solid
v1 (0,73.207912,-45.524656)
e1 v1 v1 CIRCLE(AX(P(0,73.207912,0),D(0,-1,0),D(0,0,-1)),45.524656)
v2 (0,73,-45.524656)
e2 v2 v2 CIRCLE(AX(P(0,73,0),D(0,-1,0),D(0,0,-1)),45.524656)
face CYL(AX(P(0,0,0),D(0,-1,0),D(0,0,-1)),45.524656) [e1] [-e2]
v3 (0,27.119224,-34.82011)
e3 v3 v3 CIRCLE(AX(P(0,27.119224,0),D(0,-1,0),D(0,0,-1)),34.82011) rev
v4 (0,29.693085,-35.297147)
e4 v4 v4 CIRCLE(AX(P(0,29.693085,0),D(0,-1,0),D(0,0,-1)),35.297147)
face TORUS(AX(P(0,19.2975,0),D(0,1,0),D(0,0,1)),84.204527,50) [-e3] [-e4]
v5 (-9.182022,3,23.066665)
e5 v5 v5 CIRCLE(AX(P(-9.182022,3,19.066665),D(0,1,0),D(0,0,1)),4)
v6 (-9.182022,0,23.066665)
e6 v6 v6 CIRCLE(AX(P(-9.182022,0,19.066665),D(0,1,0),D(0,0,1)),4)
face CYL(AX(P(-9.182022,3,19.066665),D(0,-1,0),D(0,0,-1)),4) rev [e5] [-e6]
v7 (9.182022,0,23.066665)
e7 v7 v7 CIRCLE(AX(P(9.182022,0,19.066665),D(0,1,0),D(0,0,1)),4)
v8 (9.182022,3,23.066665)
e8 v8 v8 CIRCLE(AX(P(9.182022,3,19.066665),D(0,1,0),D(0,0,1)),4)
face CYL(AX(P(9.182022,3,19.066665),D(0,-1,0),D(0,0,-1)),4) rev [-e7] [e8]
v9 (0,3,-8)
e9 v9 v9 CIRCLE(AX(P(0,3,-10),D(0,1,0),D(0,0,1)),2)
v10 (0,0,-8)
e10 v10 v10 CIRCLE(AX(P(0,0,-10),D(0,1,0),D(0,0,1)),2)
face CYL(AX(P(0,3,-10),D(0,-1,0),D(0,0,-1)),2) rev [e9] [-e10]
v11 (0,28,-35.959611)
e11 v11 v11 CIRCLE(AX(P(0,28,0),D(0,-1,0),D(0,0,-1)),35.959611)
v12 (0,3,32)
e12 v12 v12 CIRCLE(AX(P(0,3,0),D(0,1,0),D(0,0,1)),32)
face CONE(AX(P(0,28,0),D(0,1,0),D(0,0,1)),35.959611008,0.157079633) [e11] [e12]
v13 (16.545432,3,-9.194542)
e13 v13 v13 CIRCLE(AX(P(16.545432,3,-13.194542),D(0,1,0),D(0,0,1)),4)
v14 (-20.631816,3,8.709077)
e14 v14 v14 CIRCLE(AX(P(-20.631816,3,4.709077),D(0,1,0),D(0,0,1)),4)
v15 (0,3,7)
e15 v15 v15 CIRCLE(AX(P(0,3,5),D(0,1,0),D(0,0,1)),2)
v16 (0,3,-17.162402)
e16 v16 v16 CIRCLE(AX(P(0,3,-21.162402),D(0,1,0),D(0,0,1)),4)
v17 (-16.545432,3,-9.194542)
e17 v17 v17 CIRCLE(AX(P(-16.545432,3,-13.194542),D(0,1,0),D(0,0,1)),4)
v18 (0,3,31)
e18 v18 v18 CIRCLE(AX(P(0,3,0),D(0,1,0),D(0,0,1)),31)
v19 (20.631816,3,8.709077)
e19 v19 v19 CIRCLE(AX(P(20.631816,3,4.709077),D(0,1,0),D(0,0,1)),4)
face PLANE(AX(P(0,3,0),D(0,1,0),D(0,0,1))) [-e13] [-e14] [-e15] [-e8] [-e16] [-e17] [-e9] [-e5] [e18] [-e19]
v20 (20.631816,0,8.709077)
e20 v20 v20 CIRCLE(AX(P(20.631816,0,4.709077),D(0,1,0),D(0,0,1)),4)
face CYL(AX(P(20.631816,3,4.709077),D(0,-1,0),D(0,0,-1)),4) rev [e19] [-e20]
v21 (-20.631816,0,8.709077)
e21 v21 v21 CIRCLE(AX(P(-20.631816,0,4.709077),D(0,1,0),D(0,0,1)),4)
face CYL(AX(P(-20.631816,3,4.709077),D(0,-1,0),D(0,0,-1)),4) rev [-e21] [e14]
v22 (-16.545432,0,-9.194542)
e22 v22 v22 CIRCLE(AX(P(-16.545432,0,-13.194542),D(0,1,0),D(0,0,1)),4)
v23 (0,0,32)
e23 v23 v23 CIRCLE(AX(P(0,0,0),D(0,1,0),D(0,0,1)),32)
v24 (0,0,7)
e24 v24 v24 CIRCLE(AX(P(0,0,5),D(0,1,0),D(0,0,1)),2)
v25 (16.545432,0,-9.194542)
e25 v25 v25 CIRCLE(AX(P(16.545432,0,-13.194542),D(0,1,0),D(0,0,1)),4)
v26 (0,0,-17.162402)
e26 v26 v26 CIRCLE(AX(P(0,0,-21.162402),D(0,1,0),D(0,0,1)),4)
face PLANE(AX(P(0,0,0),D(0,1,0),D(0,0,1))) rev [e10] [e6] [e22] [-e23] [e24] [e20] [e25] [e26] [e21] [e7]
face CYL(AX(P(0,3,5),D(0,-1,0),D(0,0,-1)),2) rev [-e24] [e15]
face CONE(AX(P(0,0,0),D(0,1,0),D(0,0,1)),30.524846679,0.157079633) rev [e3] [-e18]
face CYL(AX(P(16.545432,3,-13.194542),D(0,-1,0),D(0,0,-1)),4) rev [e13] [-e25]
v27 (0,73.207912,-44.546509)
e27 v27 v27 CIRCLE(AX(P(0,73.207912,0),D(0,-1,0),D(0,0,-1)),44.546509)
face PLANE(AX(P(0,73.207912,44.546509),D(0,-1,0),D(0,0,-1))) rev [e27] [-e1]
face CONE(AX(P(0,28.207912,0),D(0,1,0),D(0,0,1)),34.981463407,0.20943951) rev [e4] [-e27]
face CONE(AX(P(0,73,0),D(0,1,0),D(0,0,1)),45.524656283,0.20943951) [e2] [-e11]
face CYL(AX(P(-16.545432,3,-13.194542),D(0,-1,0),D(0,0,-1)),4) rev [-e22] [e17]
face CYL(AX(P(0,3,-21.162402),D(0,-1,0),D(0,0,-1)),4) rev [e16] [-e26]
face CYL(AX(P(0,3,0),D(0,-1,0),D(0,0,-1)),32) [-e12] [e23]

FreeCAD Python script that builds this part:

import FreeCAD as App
import Part
import Sketcher
from FreeCAD import Vector
Q = App.Units.Quantity


def edges_at(feature, points):
    """Names of the edges that pass closest to the given points."""
    edges = feature.Shape.Edges
    near = lambda p: min(range(len(edges)), key=lambda i: edges[i].distToShape(Part.Vertex(*p))[0])
    return sorted({f"Edge{near(p) + 1}" for p in points})


def add_polygon(sketch, points):
    """Adds a closed chain of lines whose ends are joined by coincident constraints."""
    first, n = sketch.GeometryCount, len(points)
    for a, b in zip(points, points[1:] + points[:1]):
        sketch.addGeometry(Part.LineSegment(App.Vector(*a, 0), App.Vector(*b, 0)), False)
    for i in range(n):
        sketch.addConstraint(Sketcher.Constraint("Coincident", first + i, 2, first + (i + 1) % n, 1))

doc = App.newDocument("Part")
params = doc.addObject("Spreadsheet::Sheet", "Params")
for row, (alias, value) in enumerate([
    ("sketch1_diameter", "64 mm"),
    ("sketch1_diameter2", "8 mm"),
    ("sketch1_diameter3", "4 mm"),
    ("pad1_length", "3 mm"),
    ("sketch2_width", "3 mm"),
    ("sketch2_height", "1 mm"),
    ("revolution_angle", "360 deg"),
    ("sketch3_height", "1 mm"),
    ("revolution2_angle", "360 deg"),
    ("fillet_radius", "50 mm"),
], start=1):
    params.set(f"A{row}", alias)
    params.set(f"B{row}", "=" + value)
    params.setAlias(f"B{row}", alias)

body = doc.addObject("PartDesign::Body", "Body")

# Sketch on XZ plane
sketch1 = body.newObject("Sketcher::SketchObject", "Sketch")
sketch1.AttachmentSupport = (doc.getObject("XZ_Plane"), [""])
sketch1.MapMode = "FlatFace"
sketch1.addGeometry(Part.Circle(Vector(0, 0, 0), Vector(0, 0, 1), 32), False)
sketch1.addGeometry(Part.Circle(Vector(-16.545432, -13.194542, 0), Vector(0, 0, 1), 4), False)
sketch1.addGeometry(Part.Circle(Vector(0, -21.162402, 0), Vector(0, 0, 1), 4), False)
sketch1.addGeometry(Part.Circle(Vector(-20.631816, 4.709077, 0), Vector(0, 0, 1), 4), False)
sketch1.addGeometry(Part.Circle(Vector(-9.182022, 19.066665, 0), Vector(0, 0, 1), 4), False)
sketch1.addGeometry(Part.Circle(Vector(0, -10, 0), Vector(0, 0, 1), 2), False)
sketch1.addGeometry(Part.Circle(Vector(16.545432, -13.194542, 0), Vector(0, 0, 1), 4), False)
sketch1.addGeometry(Part.Circle(Vector(0, 5, 0), Vector(0, 0, 1), 2), False)
sketch1.addGeometry(Part.Circle(Vector(9.182022, 19.066665, 0), Vector(0, 0, 1), 4), False)
sketch1.addGeometry(Part.Circle(Vector(20.631816, 4.709077, 0), Vector(0, 0, 1), 4), False)
sketch1.addConstraint(Sketcher.Constraint("Coincident", 0, 3, -1, 1))
sketch1.addConstraint(Sketcher.Constraint("Equal", 1, 2))
sketch1.addConstraint(Sketcher.Constraint("Equal", 2, 3))
sketch1.addConstraint(Sketcher.Constraint("Equal", 3, 4))
sketch1.addConstraint(Sketcher.Constraint("Equal", 4, 6))
sketch1.addConstraint(Sketcher.Constraint("Equal", 5, 7))
sketch1.addConstraint(Sketcher.Constraint("Equal", 6, 8))
sketch1.addConstraint(Sketcher.Constraint("Equal", 8, 9))
sketch1.addConstraint(Sketcher.Constraint("Symmetric", 1, 3, 6, 3, -2))
sketch1.addConstraint(Sketcher.Constraint("Symmetric", 4, 3, 8, 3, -2))
sketch1.addConstraint(Sketcher.Constraint("Symmetric", 3, 3, 9, 3, -2))
sketch1.addConstraint(Sketcher.Constraint("PointOnObject", 2, 3, -2))
sketch1.addConstraint(Sketcher.Constraint("PointOnObject", 5, 3, -2))
sketch1.addConstraint(Sketcher.Constraint("PointOnObject", 7, 3, -2))
sketch1.addConstraint(Sketcher.Constraint("Diameter", 0, 64.0))
sketch1.addConstraint(Sketcher.Constraint("Diameter", 1, 8.0))
sketch1.addConstraint(Sketcher.Constraint("Diameter", 5, 4.0))
sketch1.addConstraint(Sketcher.Constraint("DistanceY", 5, 3, -1, 1, 10.0))
sketch1.addConstraint(Sketcher.Constraint("DistanceY", -1, 1, 7, 3, 5.0))
sketch1.addConstraint(Sketcher.Constraint("DistanceY", 2, 3, -1, 1, 21.162402))
sketch1.addConstraint(Sketcher.Constraint("DistanceX", 1, 3, -1, 1, 16.545432))
sketch1.addConstraint(Sketcher.Constraint("DistanceY", 1, 3, -1, 1, 13.194542))
sketch1.addConstraint(Sketcher.Constraint("DistanceY", 1, 3, 3, 3, 17.903619))
sketch1.addConstraint(Sketcher.Constraint("DistanceX", 1, 3, 4, 3, 7.36341))
sketch1.addConstraint(Sketcher.Constraint("DistanceX", 3, 3, -1, 1, 20.631816))
sketch1.addConstraint(Sketcher.Constraint("DistanceY", -1, 1, 4, 3, 19.066665))
sketch1.setExpression("Constraints[14]", "Params.sketch1_diameter")
sketch1.setExpression("Constraints[15]", "Params.sketch1_diameter2")
sketch1.setExpression("Constraints[16]", "Params.sketch1_diameter3")
pad1 = body.newObject("PartDesign::Pad", "Pad")
pad1.Profile = sketch1
pad1.setExpression("Length", "Params.pad1_length")
pad1.Reversed = True

# Sketch on YZ plane
sketch2 = body.newObject("Sketcher::SketchObject", "Sketch001")
sketch2.AttachmentSupport = (doc.getObject("YZ_Plane"), [""])
sketch2.MapMode = "FlatFace"
add_polygon(sketch2, [(28, 35.959611), (3, 32), (0, 32), (0, 30.524847), (28, 34.959611)])  # lines 0-4
sketch2.addConstraint(Sketcher.Constraint("Horizontal", 1))
sketch2.addConstraint(Sketcher.Constraint("Vertical", 2))
sketch2.addConstraint(Sketcher.Constraint("Vertical", 4))
sketch2.addConstraint(Sketcher.Constraint("PointOnObject", 1, 2, -2))
sketch2.addConstraint(Sketcher.Constraint("Parallel", 0, 3))
sketch2.addConstraint(Sketcher.Constraint("DistanceX", 1, 2, 1, 1, 3.0))
sketch2.addConstraint(Sketcher.Constraint("DistanceY", 4, 1, 4, 2, 1.0))
sketch2.addConstraint(Sketcher.Constraint("Angle", 0, Q("-171 deg")))
sketch2.addConstraint(Sketcher.Constraint("DistanceY", -1, 1, 0, 2, 32.0))
sketch2.addConstraint(Sketcher.Constraint("DistanceX", -1, 1, 3, 2, 28.0))
sketch2.setExpression("Constraints[10]", "Params.sketch2_width")
sketch2.setExpression("Constraints[11]", "Params.sketch2_height")
revolution = body.newObject("PartDesign::Revolution", "Revolution")
revolution.Profile = sketch2
revolution.ReferenceAxis = (sketch2, ["H_Axis"])
revolution.setExpression("Angle", "Params.revolution_angle")

# Sketch on YZ plane
sketch3 = body.newObject("Sketcher::SketchObject", "Sketch002")
sketch3.AttachmentSupport = (doc.getObject("YZ_Plane"), [""])
sketch3.MapMode = "FlatFace"
add_polygon(sketch3, [(73, 45.524656), (28, 35.959611), (28, 34.959611), (28.207912, 34.981463), (73.207912, 44.546509), (73.207912, 45.524656)])  # lines 0-5
sketch3.addConstraint(Sketcher.Constraint("Vertical", 1))
sketch3.addConstraint(Sketcher.Constraint("Vertical", 4))
sketch3.addConstraint(Sketcher.Constraint("Horizontal", 5))
sketch3.addConstraint(Sketcher.Constraint("Parallel", 0, 3))
sketch3.addConstraint(Sketcher.Constraint("Equal", 0, 3))
sketch3.addConstraint(Sketcher.Constraint("DistanceY", 1, 2, 1, 1, 1.0))
sketch3.addConstraint(Sketcher.Constraint("Angle", 0, Q("-168 deg")))
sketch3.addConstraint(Sketcher.Constraint("Angle", 2, Q("6 deg")))
sketch3.addConstraint(Sketcher.Constraint("DistanceX", -1, 1, 0, 2, 28.0))
sketch3.addConstraint(Sketcher.Constraint("DistanceX", -1, 1, 5, 2, 73.0))
sketch3.addConstraint(Sketcher.Constraint("DistanceX", 5, 2, 5, 1, 0.207912))
sketch3.addConstraint(Sketcher.Constraint("DistanceY", -1, 1, 0, 2, 35.959611))
sketch3.setExpression("Constraints[11]", "Params.sketch3_height")
revolution2 = body.newObject("PartDesign::Revolution", "Revolution001")
revolution2.Profile = sketch3
revolution2.ReferenceAxis = (sketch3, ["H_Axis"])
revolution2.setExpression("Angle", "Params.revolution2_angle")
doc.recompute()

fillet = body.newObject("PartDesign::Fillet", "Fillet")
fillet.Base = (revolution2, edges_at(revolution2, [(0, 28.208, 34.981)]))
fillet.setExpression("Radius", "Params.fillet_radius")

doc.recompute()
